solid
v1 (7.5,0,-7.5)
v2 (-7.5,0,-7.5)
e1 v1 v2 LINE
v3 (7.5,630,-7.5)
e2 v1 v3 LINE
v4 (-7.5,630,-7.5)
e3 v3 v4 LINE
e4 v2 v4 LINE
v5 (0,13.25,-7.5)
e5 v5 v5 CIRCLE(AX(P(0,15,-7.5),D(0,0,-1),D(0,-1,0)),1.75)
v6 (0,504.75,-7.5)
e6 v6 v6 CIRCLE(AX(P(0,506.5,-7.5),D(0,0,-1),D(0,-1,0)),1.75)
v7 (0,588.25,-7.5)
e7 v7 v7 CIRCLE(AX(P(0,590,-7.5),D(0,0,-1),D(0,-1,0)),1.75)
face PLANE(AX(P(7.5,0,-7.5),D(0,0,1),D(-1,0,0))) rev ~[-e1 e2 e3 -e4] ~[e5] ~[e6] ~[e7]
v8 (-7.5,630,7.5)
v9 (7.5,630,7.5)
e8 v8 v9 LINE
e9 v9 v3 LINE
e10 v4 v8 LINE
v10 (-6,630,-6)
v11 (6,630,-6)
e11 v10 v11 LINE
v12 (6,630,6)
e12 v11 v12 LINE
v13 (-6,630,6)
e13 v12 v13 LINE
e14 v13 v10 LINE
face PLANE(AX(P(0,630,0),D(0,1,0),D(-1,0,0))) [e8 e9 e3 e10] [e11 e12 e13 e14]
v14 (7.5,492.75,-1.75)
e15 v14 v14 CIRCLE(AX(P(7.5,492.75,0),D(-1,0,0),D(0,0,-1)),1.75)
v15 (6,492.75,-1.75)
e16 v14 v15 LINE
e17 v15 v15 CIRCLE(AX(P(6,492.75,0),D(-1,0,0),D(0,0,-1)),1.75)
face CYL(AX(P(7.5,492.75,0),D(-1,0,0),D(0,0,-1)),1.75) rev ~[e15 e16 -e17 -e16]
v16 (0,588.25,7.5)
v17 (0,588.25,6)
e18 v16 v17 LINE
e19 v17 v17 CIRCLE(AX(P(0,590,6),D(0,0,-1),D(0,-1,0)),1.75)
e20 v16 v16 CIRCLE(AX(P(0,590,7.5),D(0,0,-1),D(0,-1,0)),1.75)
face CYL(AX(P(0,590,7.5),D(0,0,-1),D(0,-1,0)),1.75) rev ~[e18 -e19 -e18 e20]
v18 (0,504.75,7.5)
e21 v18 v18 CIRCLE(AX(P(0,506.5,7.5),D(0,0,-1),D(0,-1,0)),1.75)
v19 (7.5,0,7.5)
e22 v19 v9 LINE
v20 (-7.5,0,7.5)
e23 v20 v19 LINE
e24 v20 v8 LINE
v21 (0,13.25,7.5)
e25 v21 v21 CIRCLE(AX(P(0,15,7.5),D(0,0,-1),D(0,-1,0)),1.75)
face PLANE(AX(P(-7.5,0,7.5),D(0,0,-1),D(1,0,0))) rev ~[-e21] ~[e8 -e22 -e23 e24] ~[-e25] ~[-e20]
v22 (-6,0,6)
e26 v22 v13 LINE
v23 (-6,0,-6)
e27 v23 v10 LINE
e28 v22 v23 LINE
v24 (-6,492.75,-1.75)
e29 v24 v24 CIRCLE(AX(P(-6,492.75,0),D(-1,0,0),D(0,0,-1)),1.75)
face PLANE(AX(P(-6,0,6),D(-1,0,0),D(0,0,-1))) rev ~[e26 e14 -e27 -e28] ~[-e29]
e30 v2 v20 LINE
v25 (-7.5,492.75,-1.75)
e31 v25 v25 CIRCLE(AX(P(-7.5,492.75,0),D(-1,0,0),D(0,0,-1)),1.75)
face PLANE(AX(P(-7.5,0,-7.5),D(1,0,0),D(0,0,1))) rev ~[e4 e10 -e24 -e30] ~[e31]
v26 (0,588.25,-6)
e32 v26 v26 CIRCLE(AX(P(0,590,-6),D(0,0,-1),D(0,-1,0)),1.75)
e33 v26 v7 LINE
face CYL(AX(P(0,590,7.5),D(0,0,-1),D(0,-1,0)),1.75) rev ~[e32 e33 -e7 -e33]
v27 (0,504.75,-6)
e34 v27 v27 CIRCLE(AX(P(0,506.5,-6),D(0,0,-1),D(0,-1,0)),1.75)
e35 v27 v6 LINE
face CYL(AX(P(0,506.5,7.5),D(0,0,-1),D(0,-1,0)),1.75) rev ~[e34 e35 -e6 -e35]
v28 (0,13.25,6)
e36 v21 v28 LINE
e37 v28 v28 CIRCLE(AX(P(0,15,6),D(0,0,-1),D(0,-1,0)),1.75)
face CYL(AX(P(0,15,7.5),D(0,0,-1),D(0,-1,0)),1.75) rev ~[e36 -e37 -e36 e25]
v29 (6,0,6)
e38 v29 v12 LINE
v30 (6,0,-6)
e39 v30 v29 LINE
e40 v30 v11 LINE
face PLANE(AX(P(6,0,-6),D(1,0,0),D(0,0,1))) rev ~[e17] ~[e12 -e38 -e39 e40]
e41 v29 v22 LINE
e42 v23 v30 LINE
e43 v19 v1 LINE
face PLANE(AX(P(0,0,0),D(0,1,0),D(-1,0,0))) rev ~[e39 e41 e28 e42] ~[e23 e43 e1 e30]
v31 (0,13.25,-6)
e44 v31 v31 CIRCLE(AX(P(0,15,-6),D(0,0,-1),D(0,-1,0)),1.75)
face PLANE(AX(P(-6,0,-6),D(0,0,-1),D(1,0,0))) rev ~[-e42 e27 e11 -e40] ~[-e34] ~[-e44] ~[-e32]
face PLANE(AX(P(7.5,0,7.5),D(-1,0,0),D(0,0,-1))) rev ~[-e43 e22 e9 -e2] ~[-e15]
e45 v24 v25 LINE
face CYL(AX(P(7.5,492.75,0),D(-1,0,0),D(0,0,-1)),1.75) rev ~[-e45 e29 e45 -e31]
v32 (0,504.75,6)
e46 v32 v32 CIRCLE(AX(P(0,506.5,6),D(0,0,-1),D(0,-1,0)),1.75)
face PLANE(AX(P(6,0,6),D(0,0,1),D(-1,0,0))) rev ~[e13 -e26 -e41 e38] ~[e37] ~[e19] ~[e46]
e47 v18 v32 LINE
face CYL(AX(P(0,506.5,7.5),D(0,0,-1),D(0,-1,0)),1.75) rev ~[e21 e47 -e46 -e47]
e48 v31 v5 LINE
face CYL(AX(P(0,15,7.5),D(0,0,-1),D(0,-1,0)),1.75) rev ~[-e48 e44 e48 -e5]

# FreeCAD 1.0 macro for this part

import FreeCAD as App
import Part
import Sketcher

V = App.Vector


def add_polygon(sketch, points):
    """Adds a closed chain of lines whose ends are joined by coincident constraints."""
    first, n = sketch.GeometryCount, len(points)
    for a, b in zip(points, points[1:] + points[:1]):
        sketch.addGeometry(Part.LineSegment(App.Vector(*a, 0), App.Vector(*b, 0)), False)
    for i in range(n):
        sketch.addConstraint(Sketcher.Constraint("Coincident", first + i, 2, first + (i + 1) % n, 1))

doc = App.newDocument("Part")
body = doc.addObject("PartDesign::Body", "Body")

# Sketch on XZ plane
sketch1 = body.newObject("Sketcher::SketchObject", "Sketch")
sketch1.AttachmentSupport = (doc.getObject("XZ_Plane"), [""])
sketch1.MapMode = "FlatFace"
add_polygon(sketch1, [(8, 8), (8, -8), (-8, -8), (-8, 8)])  # lines 0-3
add_polygon(sketch1, [(-6, 6), (-6, -6), (6, -6), (6, 6)])  # lines 4-7
sketch1.addConstraint([
    Sketcher.Constraint("Vertical", 0),
    Sketcher.Constraint("Horizontal", 1),
    Sketcher.Constraint("Vertical", 2),
    Sketcher.Constraint("Horizontal", 3),
    Sketcher.Constraint("Vertical", 4),
    Sketcher.Constraint("Horizontal", 5),
    Sketcher.Constraint("Vertical", 6),
    Sketcher.Constraint("Horizontal", 7),
    Sketcher.Constraint("Symmetric", 0, 2, 2, 2, -1, 1),
    Sketcher.Constraint("Symmetric", 4, 2, 6, 2, -1, 1),
    Sketcher.Constraint("Equal", 3, 0),
    Sketcher.Constraint("Equal", 7, 4),
    Sketcher.Constraint("DistanceX", 1, 2, 1, 1, 15.0),
    Sketcher.Constraint("DistanceX", 5, 1, 5, 2, 12.0),
])
pad1 = body.newObject("PartDesign::Pad", "Pad")
pad1.Profile = sketch1
pad1.Length = 630
pad1.Reversed = True

# Sketch on XY plane
sketch2 = body.newObject("Sketcher::SketchObject", "Sketch001")
sketch2.AttachmentSupport = (doc.getObject("XY_Plane"), [""])
sketch2.MapMode = "FlatFace"
sketch2.AttachmentOffset = App.Placement(V(0, 0, 7.5), App.Rotation())
sketch2.addGeometry(Part.Circle(V(0, 15, 0), V(0, 0, 1), 1.8), False)
sketch2.addConstraint([
    Sketcher.Constraint("PointOnObject", 0, 3, -2),
    Sketcher.Constraint("Diameter", 0, 3.5),
    Sketcher.Constraint("DistanceY", -1, 1, 0, 3, 15.0),
])
doc.recompute()
hole = body.newObject("PartDesign::Hole", "Hole")
hole.Profile = sketch2
hole.ThreadType = "None"
hole.Diameter = 3.5
hole.DepthType = "ThroughAll"

# Sketch on YZ plane
sketch3 = body.newObject("Sketcher::SketchObject", "Sketch002")
sketch3.AttachmentSupport = (doc.getObject("YZ_Plane"), [""])
sketch3.MapMode = "FlatFace"
sketch3.AttachmentOffset = App.Placement(V(0, 0, 7.5), App.Rotation())
sketch3.addGeometry(Part.Circle(V(492.8, 0, 0), V(0, 0, 1), 1.8), False)
sketch3.addConstraint([
    Sketcher.Constraint("PointOnObject", 0, 3, -1),
    Sketcher.Constraint("Diameter", 0, 3.5),
    Sketcher.Constraint("DistanceX", -1, 1, 0, 3, 492.75),
])
doc.recompute()
hole2 = body.newObject("PartDesign::Hole", "Hole001")
hole2.Profile = sketch3
hole2.ThreadType = "None"
hole2.Diameter = 3.5
hole2.DepthType = "ThroughAll"

# Sketch on XY plane
sketch4 = body.newObject("Sketcher::SketchObject", "Sketch003")
sketch4.AttachmentSupport = (doc.getObject("XY_Plane"), [""])
sketch4.MapMode = "FlatFace"
sketch4.AttachmentOffset = App.Placement(V(0, 0, 7.5), App.Rotation())
sketch4.addGeometry([
    Part.Circle(V(0, 590, 0), V(0, 0, 1), 1.8),
    Part.Circle(V(0, 506.5, 0), V(0, 0, 1), 1.8),
], False)
sketch4.addConstraint([
    Sketcher.Constraint("Equal", 0, 1),
    Sketcher.Constraint("PointOnObject", 0, 3, -2),
    Sketcher.Constraint("PointOnObject", 1, 3, -2),
    Sketcher.Constraint("Diameter", 0, 3.5),
    Sketcher.Constraint("DistanceY", -1, 1, 0, 3, 590.0),
    Sketcher.Constraint("DistanceY", -1, 1, 1, 3, 506.5),
])
doc.recompute()
hole3 = body.newObject("PartDesign::Hole", "Hole002")
hole3.Profile = sketch4
hole3.ThreadType = "None"
hole3.Diameter = 3.5
hole3.DepthType = "ThroughAll"

doc.recompute()
